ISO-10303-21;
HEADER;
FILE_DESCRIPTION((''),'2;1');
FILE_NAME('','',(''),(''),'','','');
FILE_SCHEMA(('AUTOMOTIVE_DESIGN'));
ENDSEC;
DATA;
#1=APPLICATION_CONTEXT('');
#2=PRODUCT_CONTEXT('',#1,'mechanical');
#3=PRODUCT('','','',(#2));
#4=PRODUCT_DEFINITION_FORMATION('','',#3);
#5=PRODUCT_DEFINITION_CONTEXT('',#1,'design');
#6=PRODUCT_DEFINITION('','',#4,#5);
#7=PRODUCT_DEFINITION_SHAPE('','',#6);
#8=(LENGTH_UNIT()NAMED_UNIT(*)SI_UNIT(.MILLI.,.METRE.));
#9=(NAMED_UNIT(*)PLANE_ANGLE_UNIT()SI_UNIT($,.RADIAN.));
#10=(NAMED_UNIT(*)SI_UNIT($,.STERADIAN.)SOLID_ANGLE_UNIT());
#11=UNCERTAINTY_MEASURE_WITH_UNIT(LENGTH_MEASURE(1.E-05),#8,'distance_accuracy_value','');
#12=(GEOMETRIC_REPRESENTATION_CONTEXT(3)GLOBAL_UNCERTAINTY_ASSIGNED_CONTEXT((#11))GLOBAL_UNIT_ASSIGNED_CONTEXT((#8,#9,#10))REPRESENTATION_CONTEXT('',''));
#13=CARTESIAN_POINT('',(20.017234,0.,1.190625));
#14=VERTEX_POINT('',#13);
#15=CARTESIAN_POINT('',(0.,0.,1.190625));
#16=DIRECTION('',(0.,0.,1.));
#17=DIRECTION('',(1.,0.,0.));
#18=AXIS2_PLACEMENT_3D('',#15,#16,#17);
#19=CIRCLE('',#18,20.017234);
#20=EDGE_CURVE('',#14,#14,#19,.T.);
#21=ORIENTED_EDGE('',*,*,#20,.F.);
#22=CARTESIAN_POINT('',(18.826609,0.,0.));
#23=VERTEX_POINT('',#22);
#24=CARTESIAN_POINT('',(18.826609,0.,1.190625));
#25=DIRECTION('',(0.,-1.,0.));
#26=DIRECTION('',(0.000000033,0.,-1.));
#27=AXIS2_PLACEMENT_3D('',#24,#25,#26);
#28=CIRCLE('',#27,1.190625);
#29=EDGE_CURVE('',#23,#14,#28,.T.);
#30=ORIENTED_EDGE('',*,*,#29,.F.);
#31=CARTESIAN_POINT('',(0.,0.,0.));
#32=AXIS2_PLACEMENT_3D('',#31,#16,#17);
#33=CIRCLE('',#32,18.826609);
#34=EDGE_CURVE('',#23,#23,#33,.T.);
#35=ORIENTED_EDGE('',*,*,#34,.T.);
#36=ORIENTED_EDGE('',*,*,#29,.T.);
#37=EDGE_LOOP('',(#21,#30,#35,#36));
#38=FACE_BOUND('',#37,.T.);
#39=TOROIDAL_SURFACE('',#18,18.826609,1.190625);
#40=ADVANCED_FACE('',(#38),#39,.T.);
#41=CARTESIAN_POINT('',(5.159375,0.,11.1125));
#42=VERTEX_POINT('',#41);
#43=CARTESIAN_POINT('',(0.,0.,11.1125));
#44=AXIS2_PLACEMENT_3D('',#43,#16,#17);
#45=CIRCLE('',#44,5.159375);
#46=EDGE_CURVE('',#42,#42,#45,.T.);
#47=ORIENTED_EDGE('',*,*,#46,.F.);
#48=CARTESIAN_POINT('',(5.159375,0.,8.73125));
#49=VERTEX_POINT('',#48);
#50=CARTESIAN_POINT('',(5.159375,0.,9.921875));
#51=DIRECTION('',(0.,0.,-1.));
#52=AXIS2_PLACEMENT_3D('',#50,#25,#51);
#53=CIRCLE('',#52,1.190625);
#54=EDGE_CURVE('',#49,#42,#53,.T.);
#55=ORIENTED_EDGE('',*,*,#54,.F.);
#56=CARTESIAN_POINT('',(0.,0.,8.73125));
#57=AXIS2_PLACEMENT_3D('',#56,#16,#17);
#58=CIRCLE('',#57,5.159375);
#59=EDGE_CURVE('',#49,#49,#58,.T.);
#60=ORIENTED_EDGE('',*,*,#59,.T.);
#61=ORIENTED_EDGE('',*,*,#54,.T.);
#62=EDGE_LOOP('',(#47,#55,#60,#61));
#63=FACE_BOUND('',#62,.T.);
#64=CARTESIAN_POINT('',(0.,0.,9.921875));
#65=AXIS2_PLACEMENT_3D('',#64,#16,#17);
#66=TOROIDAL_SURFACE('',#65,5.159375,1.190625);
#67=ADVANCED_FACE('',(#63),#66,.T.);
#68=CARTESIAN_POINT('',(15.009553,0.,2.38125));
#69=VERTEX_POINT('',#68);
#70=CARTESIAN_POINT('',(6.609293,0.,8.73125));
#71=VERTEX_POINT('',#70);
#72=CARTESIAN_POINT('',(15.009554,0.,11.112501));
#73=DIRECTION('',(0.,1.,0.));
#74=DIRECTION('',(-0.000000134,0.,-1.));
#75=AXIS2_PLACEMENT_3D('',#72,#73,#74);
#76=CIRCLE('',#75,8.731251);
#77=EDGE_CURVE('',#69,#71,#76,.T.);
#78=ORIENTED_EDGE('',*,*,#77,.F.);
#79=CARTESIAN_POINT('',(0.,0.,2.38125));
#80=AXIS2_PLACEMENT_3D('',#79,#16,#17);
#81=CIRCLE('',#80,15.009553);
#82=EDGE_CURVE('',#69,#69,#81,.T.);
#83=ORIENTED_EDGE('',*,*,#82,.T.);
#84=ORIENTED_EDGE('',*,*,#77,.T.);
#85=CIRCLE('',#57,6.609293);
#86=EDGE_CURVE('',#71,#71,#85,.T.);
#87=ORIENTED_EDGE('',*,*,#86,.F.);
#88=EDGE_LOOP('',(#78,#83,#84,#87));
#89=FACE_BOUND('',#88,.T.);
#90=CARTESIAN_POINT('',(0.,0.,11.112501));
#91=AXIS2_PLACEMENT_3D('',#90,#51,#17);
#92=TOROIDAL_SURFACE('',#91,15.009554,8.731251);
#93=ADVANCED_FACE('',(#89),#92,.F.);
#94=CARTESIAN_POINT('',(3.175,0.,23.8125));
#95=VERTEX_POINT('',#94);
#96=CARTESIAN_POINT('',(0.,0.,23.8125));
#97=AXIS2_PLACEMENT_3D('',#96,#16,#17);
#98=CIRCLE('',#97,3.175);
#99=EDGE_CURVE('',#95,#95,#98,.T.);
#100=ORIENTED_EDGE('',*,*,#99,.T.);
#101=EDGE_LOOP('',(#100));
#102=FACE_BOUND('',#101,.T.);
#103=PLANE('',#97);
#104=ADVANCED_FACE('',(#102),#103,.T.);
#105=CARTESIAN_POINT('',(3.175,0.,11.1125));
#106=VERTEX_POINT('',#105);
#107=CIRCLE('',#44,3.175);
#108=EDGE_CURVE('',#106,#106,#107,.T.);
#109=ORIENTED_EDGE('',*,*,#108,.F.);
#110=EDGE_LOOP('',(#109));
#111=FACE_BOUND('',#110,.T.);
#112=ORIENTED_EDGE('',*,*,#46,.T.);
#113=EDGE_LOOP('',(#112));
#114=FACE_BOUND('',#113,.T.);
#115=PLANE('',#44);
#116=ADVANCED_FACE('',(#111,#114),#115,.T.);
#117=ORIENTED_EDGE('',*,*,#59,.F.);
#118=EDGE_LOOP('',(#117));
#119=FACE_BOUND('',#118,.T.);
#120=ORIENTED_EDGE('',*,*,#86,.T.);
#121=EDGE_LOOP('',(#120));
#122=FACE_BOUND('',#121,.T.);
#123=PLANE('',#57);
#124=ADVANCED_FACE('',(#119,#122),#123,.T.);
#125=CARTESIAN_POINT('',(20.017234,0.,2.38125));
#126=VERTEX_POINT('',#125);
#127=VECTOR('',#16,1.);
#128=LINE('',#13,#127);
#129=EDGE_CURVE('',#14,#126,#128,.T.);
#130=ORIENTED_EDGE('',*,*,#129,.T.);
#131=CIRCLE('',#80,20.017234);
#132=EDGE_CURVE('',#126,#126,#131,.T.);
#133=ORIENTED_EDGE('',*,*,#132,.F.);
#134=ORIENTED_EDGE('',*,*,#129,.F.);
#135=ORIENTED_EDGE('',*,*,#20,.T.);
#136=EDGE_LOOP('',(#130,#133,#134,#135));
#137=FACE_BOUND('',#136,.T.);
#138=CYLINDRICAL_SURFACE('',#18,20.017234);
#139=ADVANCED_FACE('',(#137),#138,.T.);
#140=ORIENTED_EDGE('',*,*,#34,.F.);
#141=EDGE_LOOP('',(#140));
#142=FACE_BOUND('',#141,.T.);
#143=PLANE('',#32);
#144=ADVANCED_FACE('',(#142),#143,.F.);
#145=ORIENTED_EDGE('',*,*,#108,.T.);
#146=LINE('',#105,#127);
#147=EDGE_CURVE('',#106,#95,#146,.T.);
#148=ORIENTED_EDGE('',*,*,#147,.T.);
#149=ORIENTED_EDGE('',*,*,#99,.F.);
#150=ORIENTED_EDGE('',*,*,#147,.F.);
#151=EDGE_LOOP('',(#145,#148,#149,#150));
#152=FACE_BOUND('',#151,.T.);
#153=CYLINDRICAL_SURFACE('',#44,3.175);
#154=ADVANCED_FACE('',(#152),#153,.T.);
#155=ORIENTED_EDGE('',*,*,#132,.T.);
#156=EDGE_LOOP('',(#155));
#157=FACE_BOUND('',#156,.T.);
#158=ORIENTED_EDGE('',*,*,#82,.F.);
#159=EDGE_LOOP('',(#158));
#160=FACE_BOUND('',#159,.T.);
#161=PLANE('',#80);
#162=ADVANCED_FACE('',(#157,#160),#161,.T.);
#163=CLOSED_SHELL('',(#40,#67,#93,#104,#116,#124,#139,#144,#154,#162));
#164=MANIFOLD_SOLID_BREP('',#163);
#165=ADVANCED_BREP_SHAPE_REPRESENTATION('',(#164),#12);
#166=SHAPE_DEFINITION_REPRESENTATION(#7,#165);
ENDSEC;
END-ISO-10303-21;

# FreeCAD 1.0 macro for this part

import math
import FreeCAD as App
import Part
import Sketcher
Q = App.Units.Quantity

doc = App.newDocument("Part")
body = doc.addObject("PartDesign::Body", "Body")

# Sketch on XZ plane
sketch1 = doc.addObject("Sketcher::SketchObject", "Sketch")
body.addObject(sketch1)
sketch1.AttachmentSupport = (doc.XZ_Plane, [""])
sketch1.MapMode = "FlatFace"
sketch1.addGeometry(Part.LineSegment(App.Vector(0, 23.8125, 0), App.Vector(0, 0, 0)), False)
sketch1.addGeometry(Part.LineSegment(App.Vector(0, 0, 0), App.Vector(18.826609, 0, 0)), False)
sketch1.addGeometry(Part.ArcOfCircle(Part.Circle(App.Vector(18.826609, 1.190625, 0), App.Vector(0, 0, 1), 1.190625), math.radians(-89.999998), math.radians(-0.000002)), False)
sketch1.addGeometry(Part.LineSegment(App.Vector(20.017234, 1.190625, 0), App.Vector(20.017234, 2.38125, 0)), False)
sketch1.addGeometry(Part.LineSegment(App.Vector(20.017234, 2.38125, 0), App.Vector(15.009553, 2.38125, 0)), False)
sketch1.addGeometry(Part.ArcOfCircle(Part.Circle(App.Vector(15.009554, 11.112501, 0), App.Vector(0, 0, 1), 8.731251), math.radians(-164.173375), math.radians(-90.000008)), False)
sketch1.addGeometry(Part.LineSegment(App.Vector(6.609293, 8.73125, 0), App.Vector(5.159375, 8.73125, 0)), False)
sketch1.addGeometry(Part.ArcOfCircle(Part.Circle(App.Vector(5.159375, 9.921875, 0), App.Vector(0, 0, 1), 1.190625), math.radians(-90), math.radians(90)), False)
sketch1.addGeometry(Part.LineSegment(App.Vector(5.159375, 11.1125, 0), App.Vector(3.175, 11.1125, 0)), False)
sketch1.addGeometry(Part.LineSegment(App.Vector(3.175, 11.1125, 0), App.Vector(3.175, 23.8125, 0)), False)
sketch1.addGeometry(Part.LineSegment(App.Vector(3.175, 23.8125, 0), App.Vector(0, 23.8125, 0)), False)
sketch1.addConstraint(Sketcher.Constraint("Coincident", 0, 2, 1, 1))
sketch1.addConstraint(Sketcher.Constraint("Tangent", 1, 2, 2, 1))
sketch1.addConstraint(Sketcher.Constraint("Tangent", 2, 2, 3, 1))
sketch1.addConstraint(Sketcher.Constraint("Coincident", 3, 2, 4, 1))
sketch1.addConstraint(Sketcher.Constraint("Tangent", 4, 2, 5, 2))
sketch1.addConstraint(Sketcher.Constraint("Coincident", 5, 1, 6, 1))
sketch1.addConstraint(Sketcher.Constraint("Tangent", 6, 2, 7, 1))
sketch1.addConstraint(Sketcher.Constraint("Tangent", 7, 2, 8, 1))
sketch1.addConstraint(Sketcher.Constraint("Coincident", 8, 2, 9, 1))
sketch1.addConstraint(Sketcher.Constraint("Coincident", 9, 2, 10, 1))
sketch1.addConstraint(Sketcher.Constraint("Coincident", 10, 2, 0, 1))
sketch1.addConstraint(Sketcher.Constraint("Vertical", 0))
sketch1.addConstraint(Sketcher.Constraint("Horizontal", 1))
sketch1.addConstraint(Sketcher.Constraint("Vertical", 3))
sketch1.addConstraint(Sketcher.Constraint("Horizontal", 4))
sketch1.addConstraint(Sketcher.Constraint("Horizontal", 6))
sketch1.addConstraint(Sketcher.Constraint("Horizontal", 8))
sketch1.addConstraint(Sketcher.Constraint("Vertical", 9))
sketch1.addConstraint(Sketcher.Constraint("Horizontal", 10))
sketch1.addConstraint(Sketcher.Constraint("Coincident", 0, 2, -1, 1))
sketch1.addConstraint(Sketcher.Constraint("Equal", 2, 7))
sketch1.addConstraint(Sketcher.Constraint("Horizontal", 5, 3, 7, 2))
sketch1.addConstraint(Sketcher.Constraint("DistanceY", 9, 1, 9, 2, Q("0.5 in")))
sketch1.addConstraint(Sketcher.Constraint("Radius", 2, Q("0.046875 in")))
sketch1.addConstraint(Sketcher.Constraint("Radius", 5, Q("0.34375 in")))
sketch1.addConstraint(Sketcher.Constraint("DistanceX", 8, 2, 8, 1, Q("0.078125 in")))
sketch1.addConstraint(Sketcher.Constraint("DistanceX", 10, 2, 10, 1, Q("0.125 in")))
sketch1.addConstraint(Sketcher.Constraint("DistanceY", 0, 2, 0, 1, Q("0.9375 in")))
sketch1.addConstraint(Sketcher.Constraint("DistanceX", 1, 1, 1, 2, 18.826609))
sketch1.addConstraint(Sketcher.Constraint("DistanceX", 4, 2, 4, 1, 5.007681))
revolution = doc.addObject("PartDesign::Revolution", "Revolution")
body.addObject(revolution)
revolution.Profile = sketch1
revolution.ReferenceAxis = (sketch1, ["V_Axis"])
revolution.Angle = 360

doc.recompute()
